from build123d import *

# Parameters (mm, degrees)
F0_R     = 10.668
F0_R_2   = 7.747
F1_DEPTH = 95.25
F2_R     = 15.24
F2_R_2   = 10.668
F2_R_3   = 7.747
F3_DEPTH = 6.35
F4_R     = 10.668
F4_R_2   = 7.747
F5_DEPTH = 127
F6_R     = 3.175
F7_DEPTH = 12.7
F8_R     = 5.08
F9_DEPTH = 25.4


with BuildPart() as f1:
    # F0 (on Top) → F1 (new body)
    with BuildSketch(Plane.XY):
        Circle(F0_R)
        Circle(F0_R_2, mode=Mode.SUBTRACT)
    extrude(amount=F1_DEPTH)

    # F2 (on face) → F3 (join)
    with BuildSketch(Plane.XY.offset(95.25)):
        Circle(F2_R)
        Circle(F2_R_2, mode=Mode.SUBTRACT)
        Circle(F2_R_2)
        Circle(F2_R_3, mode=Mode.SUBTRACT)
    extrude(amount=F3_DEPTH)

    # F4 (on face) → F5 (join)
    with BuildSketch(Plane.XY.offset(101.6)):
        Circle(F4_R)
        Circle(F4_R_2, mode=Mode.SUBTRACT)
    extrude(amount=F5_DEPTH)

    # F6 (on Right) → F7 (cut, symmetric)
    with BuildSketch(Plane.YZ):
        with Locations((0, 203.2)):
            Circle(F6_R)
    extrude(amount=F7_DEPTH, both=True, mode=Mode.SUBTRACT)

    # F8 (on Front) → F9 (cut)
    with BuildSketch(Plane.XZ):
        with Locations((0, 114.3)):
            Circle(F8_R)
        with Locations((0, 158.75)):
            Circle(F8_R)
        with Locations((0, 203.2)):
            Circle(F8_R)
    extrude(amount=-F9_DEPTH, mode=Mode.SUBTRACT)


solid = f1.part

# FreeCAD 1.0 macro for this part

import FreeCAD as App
import Part
import Sketcher
from FreeCAD import Vector
Q = App.Units.Quantity

doc = App.newDocument("Part")
body = doc.addObject("PartDesign::Body", "Body")

# Sketch on XY plane
sketch1 = body.newObject("Sketcher::SketchObject", "Sketch")
sketch1.AttachmentSupport = (doc.getObject("XY_Plane"), [""])
sketch1.MapMode = "FlatFace"
sketch1.addGeometry([
    Part.Circle(Vector(0, 0, 0), Vector(0, 0, 1), 11),
    Part.Circle(Vector(0, 0, 0), Vector(0, 0, 1), 8),
], False)
sketch1.addConstraint([
    Sketcher.Constraint("Coincident", 0, 3, -1, 1),
    Sketcher.Constraint("Coincident", 1, 3, -1, 1),
    Sketcher.Constraint("Diameter", 0, Q("0.84 in")),
    Sketcher.Constraint("Diameter", 1, Q("0.61 in")),
])
pad1 = body.newObject("PartDesign::Pad", "Pad")
pad1.Profile = sketch1
pad1.Length = Q("3.75 in")

# Sketch on XY plane
sketch2 = body.newObject("Sketcher::SketchObject", "Sketch001")
sketch2.AttachmentSupport = (doc.getObject("XY_Plane"), [""])
sketch2.MapMode = "FlatFace"
sketch2.AttachmentOffset = App.Placement(Vector(0, 0, 3.75 * 25.4), App.Rotation())
sketch2.addGeometry([
    Part.Circle(Vector(0, 0, 0), Vector(0, 0, 1), 15),
    Part.Circle(Vector(0, 0, 0), Vector(0, 0, 1), 8),
], False)
sketch2.addConstraint([
    Sketcher.Constraint("Coincident", 0, 3, -1, 1),
    Sketcher.Constraint("Coincident", 1, 3, -1, 1),
    Sketcher.Constraint("Diameter", 0, Q("1.2 in")),
    Sketcher.Constraint("Diameter", 1, Q("0.61 in")),
])
pad2 = body.newObject("PartDesign::Pad", "Pad001")
pad2.Profile = sketch2
pad2.Length = Q("0.25 in")

# Sketch on XY plane
sketch3 = body.newObject("Sketcher::SketchObject", "Sketch002")
sketch3.AttachmentSupport = (doc.getObject("XY_Plane"), [""])
sketch3.MapMode = "FlatFace"
sketch3.AttachmentOffset = App.Placement(Vector(0, 0, 4 * 25.4), App.Rotation())
sketch3.addGeometry([
    Part.Circle(Vector(0, 0, 0), Vector(0, 0, 1), 11),
    Part.Circle(Vector(0, 0, 0), Vector(0, 0, 1), 8),
], False)
sketch3.addConstraint([
    Sketcher.Constraint("Coincident", 0, 3, -1, 1),
    Sketcher.Constraint("Coincident", 1, 3, -1, 1),
    Sketcher.Constraint("Diameter", 0, Q("0.84 in")),
    Sketcher.Constraint("Diameter", 1, Q("0.61 in")),
])
pad3 = body.newObject("PartDesign::Pad", "Pad002")
pad3.Profile = sketch3
pad3.Length = Q("5 in")

# Sketch on YZ plane
sketch4 = body.newObject("Sketcher::SketchObject", "Sketch003")
sketch4.AttachmentSupport = (doc.getObject("YZ_Plane"), [""])
sketch4.MapMode = "FlatFace"
sketch4.addGeometry(Part.Circle(Vector(0, 203.2, 0), Vector(0, 0, 1), 3.2), False)
sketch4.addConstraint([
    Sketcher.Constraint("PointOnObject", 0, 3, -2),
    Sketcher.Constraint("Diameter", 0, Q("0.25 in")),
    Sketcher.Constraint("DistanceY", -1, 1, 0, 3, Q("8 in")),
])
pocket1 = body.newObject("PartDesign::Pocket", "Pocket")
pocket1.Profile = sketch4
pocket1.Length = Q("1 in")
pocket1.Midplane = True

# Sketch on XZ plane
sketch5 = body.newObject("Sketcher::SketchObject", "Sketch004")
sketch5.AttachmentSupport = (doc.getObject("XZ_Plane"), [""])
sketch5.MapMode = "FlatFace"
sketch5.addGeometry([
    Part.Circle(Vector(0, 114, 0), Vector(0, 0, 1), 5),
    Part.Circle(Vector(0, 159, 0), Vector(0, 0, 1), 5),
    Part.Circle(Vector(0, 203, 0), Vector(0, 0, 1), 5),
], False)
sketch5.addConstraint([
    Sketcher.Constraint("Equal", 0, 1),
    Sketcher.Constraint("Equal", 1, 2),
    Sketcher.Constraint("PointOnObject", 0, 3, -2),
    Sketcher.Constraint("PointOnObject", 1, 3, -2),
    Sketcher.Constraint("PointOnObject", 2, 3, -2),
    Sketcher.Constraint("Diameter", 0, Q("0.4 in")),
    Sketcher.Constraint("DistanceY", -1, 1, 2, 3, Q("8 in")),
    Sketcher.Constraint("DistanceY", -1, 1, 0, 3, Q("4.5 in")),
    Sketcher.Constraint("DistanceY", -1, 1, 1, 3, Q("6.25 in")),
])
pocket2 = body.newObject("PartDesign::Pocket", "Pocket001")
pocket2.Profile = sketch5
pocket2.Length = Q("1 in")

doc.recompute()
